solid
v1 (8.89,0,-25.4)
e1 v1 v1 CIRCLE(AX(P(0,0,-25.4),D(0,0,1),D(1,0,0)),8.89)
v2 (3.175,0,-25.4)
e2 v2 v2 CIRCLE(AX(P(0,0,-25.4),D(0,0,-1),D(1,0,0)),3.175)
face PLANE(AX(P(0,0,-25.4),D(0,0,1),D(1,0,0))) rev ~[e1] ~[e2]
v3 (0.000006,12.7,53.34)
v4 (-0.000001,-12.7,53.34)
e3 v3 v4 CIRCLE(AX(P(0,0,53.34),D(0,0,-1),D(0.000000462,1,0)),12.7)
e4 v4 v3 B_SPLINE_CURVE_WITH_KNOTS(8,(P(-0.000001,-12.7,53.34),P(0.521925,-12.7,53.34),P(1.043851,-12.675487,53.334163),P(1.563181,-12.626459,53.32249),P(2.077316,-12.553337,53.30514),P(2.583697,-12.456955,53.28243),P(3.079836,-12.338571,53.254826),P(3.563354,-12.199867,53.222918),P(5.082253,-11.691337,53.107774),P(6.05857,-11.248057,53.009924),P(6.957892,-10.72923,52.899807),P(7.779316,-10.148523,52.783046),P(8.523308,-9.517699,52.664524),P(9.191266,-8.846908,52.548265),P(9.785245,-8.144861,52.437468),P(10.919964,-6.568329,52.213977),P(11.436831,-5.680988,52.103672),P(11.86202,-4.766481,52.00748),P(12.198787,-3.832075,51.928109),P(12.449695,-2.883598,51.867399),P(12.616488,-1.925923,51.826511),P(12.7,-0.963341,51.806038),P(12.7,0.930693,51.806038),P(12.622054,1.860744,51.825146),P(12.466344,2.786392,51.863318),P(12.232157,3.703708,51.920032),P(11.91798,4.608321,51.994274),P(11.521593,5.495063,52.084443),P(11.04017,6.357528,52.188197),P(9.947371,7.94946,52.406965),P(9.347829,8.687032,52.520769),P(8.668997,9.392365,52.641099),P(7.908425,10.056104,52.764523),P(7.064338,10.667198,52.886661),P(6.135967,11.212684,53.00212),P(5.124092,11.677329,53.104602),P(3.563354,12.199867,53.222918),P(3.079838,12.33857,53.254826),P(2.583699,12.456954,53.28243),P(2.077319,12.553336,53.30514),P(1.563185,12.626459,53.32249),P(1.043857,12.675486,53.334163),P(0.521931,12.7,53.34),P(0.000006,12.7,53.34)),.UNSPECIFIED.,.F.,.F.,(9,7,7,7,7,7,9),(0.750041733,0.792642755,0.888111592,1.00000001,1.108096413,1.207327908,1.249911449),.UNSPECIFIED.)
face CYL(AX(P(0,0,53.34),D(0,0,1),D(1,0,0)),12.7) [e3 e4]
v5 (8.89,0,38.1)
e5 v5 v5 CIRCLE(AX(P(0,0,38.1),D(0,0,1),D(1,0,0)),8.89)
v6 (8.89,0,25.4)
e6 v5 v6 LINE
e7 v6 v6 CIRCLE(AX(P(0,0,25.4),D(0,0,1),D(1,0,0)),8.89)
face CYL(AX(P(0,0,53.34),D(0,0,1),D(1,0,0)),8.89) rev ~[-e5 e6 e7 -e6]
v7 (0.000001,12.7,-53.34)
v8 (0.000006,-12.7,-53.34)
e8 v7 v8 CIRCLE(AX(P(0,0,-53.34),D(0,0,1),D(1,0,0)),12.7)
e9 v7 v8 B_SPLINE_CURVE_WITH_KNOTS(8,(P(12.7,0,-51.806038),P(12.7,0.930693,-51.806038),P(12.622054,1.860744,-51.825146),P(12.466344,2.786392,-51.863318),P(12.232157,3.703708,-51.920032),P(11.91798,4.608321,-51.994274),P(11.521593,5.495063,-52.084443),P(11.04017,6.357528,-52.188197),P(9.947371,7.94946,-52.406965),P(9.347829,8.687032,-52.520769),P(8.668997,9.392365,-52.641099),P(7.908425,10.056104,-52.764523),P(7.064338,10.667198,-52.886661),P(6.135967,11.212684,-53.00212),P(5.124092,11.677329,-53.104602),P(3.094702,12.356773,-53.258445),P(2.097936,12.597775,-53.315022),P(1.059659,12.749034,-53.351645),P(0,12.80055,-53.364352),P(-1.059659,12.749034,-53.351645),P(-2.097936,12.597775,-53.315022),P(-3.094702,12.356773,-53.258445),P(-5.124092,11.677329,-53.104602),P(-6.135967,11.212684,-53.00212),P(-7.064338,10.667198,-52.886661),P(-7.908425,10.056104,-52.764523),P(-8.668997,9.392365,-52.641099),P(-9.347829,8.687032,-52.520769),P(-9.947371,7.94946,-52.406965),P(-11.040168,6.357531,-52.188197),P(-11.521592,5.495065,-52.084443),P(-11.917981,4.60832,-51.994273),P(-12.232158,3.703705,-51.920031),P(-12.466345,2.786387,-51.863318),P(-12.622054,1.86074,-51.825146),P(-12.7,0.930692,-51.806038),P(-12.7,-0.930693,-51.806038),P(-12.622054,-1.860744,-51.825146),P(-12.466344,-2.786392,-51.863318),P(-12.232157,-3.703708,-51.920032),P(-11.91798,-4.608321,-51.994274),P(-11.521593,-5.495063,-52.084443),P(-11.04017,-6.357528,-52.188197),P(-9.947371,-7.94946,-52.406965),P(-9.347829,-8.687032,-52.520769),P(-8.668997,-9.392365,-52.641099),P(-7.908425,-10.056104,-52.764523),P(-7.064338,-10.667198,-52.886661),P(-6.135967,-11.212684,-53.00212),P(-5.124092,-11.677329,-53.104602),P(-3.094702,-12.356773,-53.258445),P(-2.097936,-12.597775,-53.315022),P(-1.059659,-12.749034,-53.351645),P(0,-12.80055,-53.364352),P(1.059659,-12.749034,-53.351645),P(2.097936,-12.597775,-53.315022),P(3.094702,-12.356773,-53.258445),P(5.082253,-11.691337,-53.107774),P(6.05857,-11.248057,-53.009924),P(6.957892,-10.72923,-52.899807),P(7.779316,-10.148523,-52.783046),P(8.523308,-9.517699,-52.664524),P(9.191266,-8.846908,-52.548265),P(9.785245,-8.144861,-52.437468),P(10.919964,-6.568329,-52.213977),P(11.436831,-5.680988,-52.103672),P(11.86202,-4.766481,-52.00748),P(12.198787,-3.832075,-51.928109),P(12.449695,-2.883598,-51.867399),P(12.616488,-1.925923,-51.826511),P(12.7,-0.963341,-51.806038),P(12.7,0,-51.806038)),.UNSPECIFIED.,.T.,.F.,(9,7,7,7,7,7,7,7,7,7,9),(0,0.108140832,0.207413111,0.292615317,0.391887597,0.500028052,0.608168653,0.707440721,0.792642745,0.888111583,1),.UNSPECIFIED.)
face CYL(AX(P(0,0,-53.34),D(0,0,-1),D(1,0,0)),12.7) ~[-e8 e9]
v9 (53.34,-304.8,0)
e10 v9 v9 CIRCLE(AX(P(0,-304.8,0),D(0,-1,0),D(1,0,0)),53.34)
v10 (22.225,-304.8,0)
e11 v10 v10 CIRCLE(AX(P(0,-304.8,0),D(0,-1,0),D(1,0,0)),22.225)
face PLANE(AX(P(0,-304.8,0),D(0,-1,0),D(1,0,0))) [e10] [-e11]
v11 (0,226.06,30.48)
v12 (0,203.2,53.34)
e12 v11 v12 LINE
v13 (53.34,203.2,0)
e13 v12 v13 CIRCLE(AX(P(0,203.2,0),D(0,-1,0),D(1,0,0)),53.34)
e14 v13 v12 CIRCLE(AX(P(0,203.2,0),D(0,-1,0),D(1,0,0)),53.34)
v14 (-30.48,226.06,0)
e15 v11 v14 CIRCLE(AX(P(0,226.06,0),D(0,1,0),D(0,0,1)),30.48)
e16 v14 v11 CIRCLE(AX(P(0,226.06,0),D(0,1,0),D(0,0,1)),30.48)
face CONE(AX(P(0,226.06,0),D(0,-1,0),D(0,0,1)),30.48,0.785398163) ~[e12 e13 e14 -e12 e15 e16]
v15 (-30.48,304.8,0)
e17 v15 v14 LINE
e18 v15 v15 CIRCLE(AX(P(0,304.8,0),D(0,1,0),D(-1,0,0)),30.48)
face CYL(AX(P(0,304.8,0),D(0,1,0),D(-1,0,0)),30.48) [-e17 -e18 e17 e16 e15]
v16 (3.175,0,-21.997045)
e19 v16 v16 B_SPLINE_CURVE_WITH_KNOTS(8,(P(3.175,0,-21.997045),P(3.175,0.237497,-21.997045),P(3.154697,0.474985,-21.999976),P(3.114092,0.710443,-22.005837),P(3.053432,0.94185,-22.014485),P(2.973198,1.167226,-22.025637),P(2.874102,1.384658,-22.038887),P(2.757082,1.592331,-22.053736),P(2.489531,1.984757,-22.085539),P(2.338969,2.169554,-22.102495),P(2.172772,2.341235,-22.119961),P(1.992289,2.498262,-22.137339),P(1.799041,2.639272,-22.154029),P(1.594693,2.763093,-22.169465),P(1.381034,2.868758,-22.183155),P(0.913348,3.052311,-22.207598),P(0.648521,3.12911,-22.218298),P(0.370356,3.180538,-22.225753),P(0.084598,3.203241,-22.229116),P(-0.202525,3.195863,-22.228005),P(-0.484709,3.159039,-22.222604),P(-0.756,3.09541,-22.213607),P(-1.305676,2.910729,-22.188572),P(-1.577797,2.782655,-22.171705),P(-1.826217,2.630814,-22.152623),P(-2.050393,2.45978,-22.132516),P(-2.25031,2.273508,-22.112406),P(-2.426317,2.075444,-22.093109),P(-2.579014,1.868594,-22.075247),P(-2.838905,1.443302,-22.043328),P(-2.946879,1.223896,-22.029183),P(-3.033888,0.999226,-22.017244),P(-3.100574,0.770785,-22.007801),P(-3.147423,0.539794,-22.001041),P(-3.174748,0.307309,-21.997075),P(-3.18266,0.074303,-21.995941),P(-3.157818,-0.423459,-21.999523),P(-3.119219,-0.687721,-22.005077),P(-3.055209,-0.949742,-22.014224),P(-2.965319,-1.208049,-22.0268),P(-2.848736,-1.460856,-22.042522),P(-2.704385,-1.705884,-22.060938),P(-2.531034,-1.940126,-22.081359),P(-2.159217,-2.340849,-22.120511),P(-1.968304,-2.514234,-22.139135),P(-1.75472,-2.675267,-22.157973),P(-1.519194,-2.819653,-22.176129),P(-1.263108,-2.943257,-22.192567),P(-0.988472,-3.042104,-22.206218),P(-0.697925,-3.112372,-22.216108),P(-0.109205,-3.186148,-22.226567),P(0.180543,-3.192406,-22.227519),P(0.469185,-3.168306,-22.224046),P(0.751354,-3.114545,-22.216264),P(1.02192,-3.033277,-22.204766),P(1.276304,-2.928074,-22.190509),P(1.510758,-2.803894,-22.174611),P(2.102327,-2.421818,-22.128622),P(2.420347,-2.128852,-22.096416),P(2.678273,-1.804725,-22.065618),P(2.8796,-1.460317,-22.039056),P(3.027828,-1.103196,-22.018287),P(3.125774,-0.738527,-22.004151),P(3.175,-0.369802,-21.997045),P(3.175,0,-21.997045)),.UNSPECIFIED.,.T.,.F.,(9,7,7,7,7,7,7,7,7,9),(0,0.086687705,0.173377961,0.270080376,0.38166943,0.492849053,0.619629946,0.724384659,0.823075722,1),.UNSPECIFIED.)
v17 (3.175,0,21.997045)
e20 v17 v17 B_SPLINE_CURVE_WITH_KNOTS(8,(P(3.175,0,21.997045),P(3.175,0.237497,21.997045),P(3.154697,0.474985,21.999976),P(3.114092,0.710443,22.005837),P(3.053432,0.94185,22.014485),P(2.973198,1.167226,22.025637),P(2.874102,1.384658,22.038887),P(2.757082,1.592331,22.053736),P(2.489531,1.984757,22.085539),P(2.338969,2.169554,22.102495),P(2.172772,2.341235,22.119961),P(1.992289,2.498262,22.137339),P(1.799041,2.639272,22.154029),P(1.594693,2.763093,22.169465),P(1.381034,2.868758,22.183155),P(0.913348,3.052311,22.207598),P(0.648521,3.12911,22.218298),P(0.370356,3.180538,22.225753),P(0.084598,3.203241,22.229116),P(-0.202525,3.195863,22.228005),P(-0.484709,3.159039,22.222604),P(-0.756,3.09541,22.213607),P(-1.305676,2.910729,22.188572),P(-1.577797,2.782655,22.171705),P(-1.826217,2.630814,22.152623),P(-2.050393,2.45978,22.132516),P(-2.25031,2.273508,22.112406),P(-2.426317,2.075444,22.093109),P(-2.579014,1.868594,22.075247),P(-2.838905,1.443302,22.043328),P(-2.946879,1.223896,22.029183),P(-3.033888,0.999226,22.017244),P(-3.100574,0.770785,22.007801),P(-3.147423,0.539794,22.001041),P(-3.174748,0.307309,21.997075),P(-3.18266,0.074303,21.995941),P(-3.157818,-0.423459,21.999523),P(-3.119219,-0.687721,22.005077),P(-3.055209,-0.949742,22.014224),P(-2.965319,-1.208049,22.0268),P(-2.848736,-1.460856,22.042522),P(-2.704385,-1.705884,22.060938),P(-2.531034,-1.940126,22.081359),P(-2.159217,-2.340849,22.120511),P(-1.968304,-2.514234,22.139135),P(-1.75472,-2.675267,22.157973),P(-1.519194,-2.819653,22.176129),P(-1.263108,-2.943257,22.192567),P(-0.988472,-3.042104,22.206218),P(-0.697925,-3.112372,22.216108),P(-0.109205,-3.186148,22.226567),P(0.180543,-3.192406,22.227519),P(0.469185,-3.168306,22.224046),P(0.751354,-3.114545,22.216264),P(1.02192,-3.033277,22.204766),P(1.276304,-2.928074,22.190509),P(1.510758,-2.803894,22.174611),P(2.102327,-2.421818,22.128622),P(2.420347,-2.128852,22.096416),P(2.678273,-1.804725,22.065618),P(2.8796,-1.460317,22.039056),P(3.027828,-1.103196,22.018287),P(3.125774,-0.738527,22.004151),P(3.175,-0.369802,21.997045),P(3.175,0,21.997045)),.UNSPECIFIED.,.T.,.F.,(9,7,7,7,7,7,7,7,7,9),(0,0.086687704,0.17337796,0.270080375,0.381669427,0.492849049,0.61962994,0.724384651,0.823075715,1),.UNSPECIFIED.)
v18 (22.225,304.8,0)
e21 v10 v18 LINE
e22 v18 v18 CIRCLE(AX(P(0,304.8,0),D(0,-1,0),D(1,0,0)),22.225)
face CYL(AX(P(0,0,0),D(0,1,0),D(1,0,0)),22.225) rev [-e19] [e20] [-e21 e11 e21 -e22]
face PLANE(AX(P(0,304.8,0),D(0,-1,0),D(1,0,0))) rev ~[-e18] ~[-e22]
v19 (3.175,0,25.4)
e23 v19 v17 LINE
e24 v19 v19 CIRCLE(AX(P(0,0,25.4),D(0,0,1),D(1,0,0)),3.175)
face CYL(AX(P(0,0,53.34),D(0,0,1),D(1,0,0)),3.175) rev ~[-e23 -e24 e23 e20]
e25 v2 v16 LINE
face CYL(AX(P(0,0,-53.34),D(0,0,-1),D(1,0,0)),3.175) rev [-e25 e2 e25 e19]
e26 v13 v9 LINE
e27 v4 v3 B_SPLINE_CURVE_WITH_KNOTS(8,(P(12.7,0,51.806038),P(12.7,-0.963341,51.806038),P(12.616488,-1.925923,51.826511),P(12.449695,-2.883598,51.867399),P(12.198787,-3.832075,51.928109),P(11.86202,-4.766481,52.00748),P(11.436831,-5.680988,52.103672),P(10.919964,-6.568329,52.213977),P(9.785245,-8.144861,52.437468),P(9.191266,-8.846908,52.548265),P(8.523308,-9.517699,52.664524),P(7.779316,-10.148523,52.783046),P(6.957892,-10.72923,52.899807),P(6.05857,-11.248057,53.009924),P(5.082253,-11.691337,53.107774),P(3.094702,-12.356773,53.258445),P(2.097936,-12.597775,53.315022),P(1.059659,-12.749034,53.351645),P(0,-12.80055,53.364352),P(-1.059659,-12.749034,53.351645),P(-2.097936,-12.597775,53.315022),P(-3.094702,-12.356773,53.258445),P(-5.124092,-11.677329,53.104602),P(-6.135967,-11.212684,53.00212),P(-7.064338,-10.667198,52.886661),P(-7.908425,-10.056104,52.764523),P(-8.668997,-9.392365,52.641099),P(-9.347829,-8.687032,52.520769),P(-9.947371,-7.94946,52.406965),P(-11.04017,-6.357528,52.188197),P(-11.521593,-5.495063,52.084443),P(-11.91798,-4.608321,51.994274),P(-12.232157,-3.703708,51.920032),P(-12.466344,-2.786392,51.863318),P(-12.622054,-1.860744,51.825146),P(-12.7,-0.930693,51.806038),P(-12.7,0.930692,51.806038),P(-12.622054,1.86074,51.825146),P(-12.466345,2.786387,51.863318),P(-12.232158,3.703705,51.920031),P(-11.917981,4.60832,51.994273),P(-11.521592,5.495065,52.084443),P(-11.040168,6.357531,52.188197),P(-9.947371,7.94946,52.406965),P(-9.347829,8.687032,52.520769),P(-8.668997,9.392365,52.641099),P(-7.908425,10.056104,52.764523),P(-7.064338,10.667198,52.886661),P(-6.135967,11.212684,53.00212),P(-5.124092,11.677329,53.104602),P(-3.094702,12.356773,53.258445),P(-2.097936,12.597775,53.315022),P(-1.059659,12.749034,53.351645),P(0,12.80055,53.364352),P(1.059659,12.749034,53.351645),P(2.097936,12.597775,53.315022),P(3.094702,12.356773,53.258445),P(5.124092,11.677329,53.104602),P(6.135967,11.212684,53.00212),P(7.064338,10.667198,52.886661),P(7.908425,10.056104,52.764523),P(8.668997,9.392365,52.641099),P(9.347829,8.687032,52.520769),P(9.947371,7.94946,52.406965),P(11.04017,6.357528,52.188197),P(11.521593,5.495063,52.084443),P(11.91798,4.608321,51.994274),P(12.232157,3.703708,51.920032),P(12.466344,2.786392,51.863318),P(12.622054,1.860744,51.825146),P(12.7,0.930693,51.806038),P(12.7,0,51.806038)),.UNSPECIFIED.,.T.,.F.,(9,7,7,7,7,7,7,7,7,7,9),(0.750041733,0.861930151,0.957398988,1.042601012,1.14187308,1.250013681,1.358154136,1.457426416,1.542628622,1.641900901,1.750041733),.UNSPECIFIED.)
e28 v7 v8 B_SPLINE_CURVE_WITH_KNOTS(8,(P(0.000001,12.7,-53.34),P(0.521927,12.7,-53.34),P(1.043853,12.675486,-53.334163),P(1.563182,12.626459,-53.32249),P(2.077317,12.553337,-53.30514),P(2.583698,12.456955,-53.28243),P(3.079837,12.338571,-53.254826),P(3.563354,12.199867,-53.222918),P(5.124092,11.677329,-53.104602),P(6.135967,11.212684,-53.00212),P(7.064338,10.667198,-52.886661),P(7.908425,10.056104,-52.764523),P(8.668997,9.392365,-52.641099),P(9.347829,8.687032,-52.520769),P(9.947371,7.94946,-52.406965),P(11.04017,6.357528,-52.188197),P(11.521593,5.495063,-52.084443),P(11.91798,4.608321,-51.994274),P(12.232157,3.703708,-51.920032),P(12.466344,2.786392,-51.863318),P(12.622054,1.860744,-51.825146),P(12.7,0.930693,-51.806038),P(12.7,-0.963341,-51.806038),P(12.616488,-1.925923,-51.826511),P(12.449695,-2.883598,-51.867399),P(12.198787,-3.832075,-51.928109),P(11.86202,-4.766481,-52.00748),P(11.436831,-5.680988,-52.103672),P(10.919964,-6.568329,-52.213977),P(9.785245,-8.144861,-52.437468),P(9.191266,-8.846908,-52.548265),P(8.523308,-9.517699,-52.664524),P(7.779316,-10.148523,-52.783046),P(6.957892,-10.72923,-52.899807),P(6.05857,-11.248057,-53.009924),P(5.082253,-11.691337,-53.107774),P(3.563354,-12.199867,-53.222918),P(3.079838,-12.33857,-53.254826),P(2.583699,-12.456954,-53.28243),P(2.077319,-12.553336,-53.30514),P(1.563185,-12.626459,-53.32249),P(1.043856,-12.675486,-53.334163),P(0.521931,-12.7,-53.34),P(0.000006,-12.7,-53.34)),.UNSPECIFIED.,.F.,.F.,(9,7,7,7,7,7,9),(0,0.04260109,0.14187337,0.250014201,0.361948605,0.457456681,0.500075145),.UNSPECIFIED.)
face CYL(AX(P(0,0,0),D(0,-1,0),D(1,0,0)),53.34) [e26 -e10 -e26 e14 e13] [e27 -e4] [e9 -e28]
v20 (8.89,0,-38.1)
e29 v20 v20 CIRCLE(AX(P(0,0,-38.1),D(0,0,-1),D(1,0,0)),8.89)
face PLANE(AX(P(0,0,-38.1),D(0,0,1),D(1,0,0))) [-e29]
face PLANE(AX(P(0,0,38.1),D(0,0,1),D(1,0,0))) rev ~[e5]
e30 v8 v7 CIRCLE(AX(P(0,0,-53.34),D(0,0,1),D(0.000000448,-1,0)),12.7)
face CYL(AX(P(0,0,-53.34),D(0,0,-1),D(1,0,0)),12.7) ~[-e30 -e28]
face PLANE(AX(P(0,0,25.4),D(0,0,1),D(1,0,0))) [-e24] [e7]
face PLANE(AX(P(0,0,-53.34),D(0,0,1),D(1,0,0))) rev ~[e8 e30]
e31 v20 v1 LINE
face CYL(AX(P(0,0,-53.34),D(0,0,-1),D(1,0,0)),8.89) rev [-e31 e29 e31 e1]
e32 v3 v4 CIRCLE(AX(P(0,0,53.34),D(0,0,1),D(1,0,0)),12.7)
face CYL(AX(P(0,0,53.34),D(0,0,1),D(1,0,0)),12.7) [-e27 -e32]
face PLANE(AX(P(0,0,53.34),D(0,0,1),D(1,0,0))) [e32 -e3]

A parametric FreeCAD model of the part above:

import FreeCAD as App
import Part
import Sketcher

V = App.Vector
Q = App.Units.Quantity

doc = App.newDocument("Part")
body = doc.addObject("PartDesign::Body", "Body")

sketch1 = doc.addObject("Sketcher::SketchObject", "Sketch")
body.addObject(sketch1)
sketch1.AttachmentSupport = (doc.XZ_Plane, [""])
sketch1.MapMode = "FlatFace"
sketch1.addGeometry([
    Part.Circle(V(0, 0, 0), V(0, 0, 1), 53),
    Part.Circle(V(0, 0, 0), V(0, 0, 1), 22),
], False)
sketch1.addConstraint([
    Sketcher.Constraint("Coincident", 0, 3, -1, 1),
    Sketcher.Constraint("Coincident", 1, 3, -1, 1),
    Sketcher.Constraint("Diameter", 0, Q("4.2 in")),
    Sketcher.Constraint("Diameter", 1, Q("1.75 in")),
])
pad1 = doc.addObject("PartDesign::Pad", "Pad")
body.addObject(pad1)
pad1.Profile = sketch1
pad1.Length = Q("24 in")
pad1.Midplane = True

sketch2 = doc.addObject("Sketcher::SketchObject", "Sketch001")
body.addObject(sketch2)
sketch2.AttachmentSupport = (doc.XZ_Plane, [""])
sketch2.MapMode = "FlatFace"
sketch2.AttachmentOffset = App.Placement(V(0, 0, -12 * 25.4), App.Rotation())
sketch2.addGeometry([
    Part.Circle(V(0, 0, 0), V(0, 0, 1), 53),
    Part.Circle(V(0, 0, 0), V(0, 0, 1), 30),
], False)
sketch2.addConstraint([
    Sketcher.Constraint("Coincident", 0, 3, -1, 1),
    Sketcher.Constraint("Coincident", 1, 3, -1, 1),
    Sketcher.Constraint("Diameter", 0, Q("4.2 in")),
    Sketcher.Constraint("Diameter", 1, Q("2.4 in")),
])
pocket1 = doc.addObject("PartDesign::Pocket", "Pocket")
body.addObject(pocket1)
pocket1.Profile = sketch2
pocket1.Length = Q("4 in")
pocket1.Reversed = True

sketch3 = doc.addObject("Sketcher::SketchObject", "Sketch002")
body.addObject(sketch3)
sketch3.AttachmentSupport = (doc.YZ_Plane, [""])
sketch3.MapMode = "FlatFace"
sketch3.addGeometry([
    Part.LineSegment(V(203, 53, 0), V(203, 30, 0)),
    Part.LineSegment(V(203, 30, 0), V(226, 30, 0)),
    Part.LineSegment(V(226, 30, 0), V(203, 53, 0)),
], False)
sketch3.addConstraint([
    Sketcher.Constraint("Coincident", 0, 2, 1, 1),
    Sketcher.Constraint("Coincident", 1, 2, 2, 1),
    Sketcher.Constraint("Coincident", 2, 2, 0, 1),
    Sketcher.Constraint("Vertical", 0),
    Sketcher.Constraint("Horizontal", 1),
    Sketcher.Constraint("Equal", 1, 0),
    Sketcher.Constraint("DistanceX", 1, 1, 1, 2, Q("0.9 in")),
    Sketcher.Constraint("DistanceX", -1, 1, 0, 2, Q("8 in")),
    Sketcher.Constraint("DistanceY", -1, 1, 0, 2, Q("1.2 in")),
])
revolution = doc.addObject("PartDesign::Revolution", "Revolution")
body.addObject(revolution)
revolution.Profile = sketch3
revolution.ReferenceAxis = (sketch3, ["H_Axis"])
revolution.Angle = 360

sketch4 = doc.addObject("Sketcher::SketchObject", "Sketch003")
body.addObject(sketch4)
sketch4.AttachmentSupport = (doc.XY_Plane, [""])
sketch4.MapMode = "FlatFace"
sketch4.AttachmentOffset = App.Placement(V(0, 0, 2.1 * 25.4), App.Rotation())
sketch4.addGeometry(Part.Circle(V(0, 0, 0), V(0, 0, 1), 13), False)
sketch4.addConstraint([
    Sketcher.Constraint("Coincident", 0, 3, -1, 1),
    Sketcher.Constraint("Diameter", 0, Q("1 in")),
])
pocket2 = doc.addObject("PartDesign::Pocket", "Pocket001")
body.addObject(pocket2)
pocket2.Profile = sketch4
pocket2.Length = Q("0.6 in")

sketch5 = doc.addObject("Sketcher::SketchObject", "Sketch004")
body.addObject(sketch5)
sketch5.AttachmentSupport = (doc.XY_Plane, [""])
sketch5.MapMode = "FlatFace"
sketch5.AttachmentOffset = App.Placement(V(0, 0, 2.1 * 25.4), App.Rotation())
sketch5.addGeometry(Part.Circle(V(0, 0, 0), V(0, 0, 1), 9), False)
sketch5.addConstraint([
    Sketcher.Constraint("Coincident", 0, 3, -1, 1),
    Sketcher.Constraint("Diameter", 0, Q("0.7 in")),
])
pocket3 = doc.addObject("PartDesign::Pocket", "Pocket002")
body.addObject(pocket3)
pocket3.Profile = sketch5
pocket3.Length = Q("1.1 in")

sketch6 = doc.addObject("Sketcher::SketchObject", "Sketch005")
body.addObject(sketch6)
sketch6.AttachmentSupport = (doc.XY_Plane, [""])
sketch6.MapMode = "FlatFace"
sketch6.AttachmentOffset = App.Placement(V(0, 0, 2.1 * 25.4), App.Rotation())
sketch6.addGeometry(Part.Circle(V(0, 0, 0), V(0, 0, 1), 3.2), False)
sketch6.addConstraint([
    Sketcher.Constraint("Coincident", 0, 3, -1, 1),
    Sketcher.Constraint("Diameter", 0, Q("0.25 in")),
])
pocket4 = doc.addObject("PartDesign::Pocket", "Pocket003")
body.addObject(pocket4)
pocket4.Profile = sketch6
pocket4.Length = 32.342955

sketch7 = doc.addObject("Sketcher::SketchObject", "Sketch006")
body.addObject(sketch7)
sketch7.AttachmentSupport = (doc.XY_Plane, [""])
sketch7.MapMode = "FlatFace"
sketch7.AttachmentOffset = App.Placement(V(0, 0, -2.1 * 25.4), App.Rotation())
sketch7.addGeometry(Part.Circle(V(0, 0, 0), V(0, 0, 1), 13), False)
sketch7.addConstraint([
    Sketcher.Constraint("Coincident", 0, 3, -1, 1),
    Sketcher.Constraint("Diameter", 0, Q("1 in")),
])
pocket5 = doc.addObject("PartDesign::Pocket", "Pocket004")
body.addObject(pocket5)
pocket5.Profile = sketch7
pocket5.Length = Q("0.6 in")
pocket5.Reversed = True

sketch8 = doc.addObject("Sketcher::SketchObject", "Sketch007")
body.addObject(sketch8)
sketch8.AttachmentSupport = (doc.XY_Plane, [""])
sketch8.MapMode = "FlatFace"
sketch8.AttachmentOffset = App.Placement(V(0, 0, -2.1 * 25.4), App.Rotation())
sketch8.addGeometry(Part.Circle(V(0, 0, 0), V(0, 0, 1), 9), False)
sketch8.addConstraint([
    Sketcher.Constraint("Coincident", 0, 3, -1, 1),
    Sketcher.Constraint("Diameter", 0, Q("0.7 in")),
])
pocket6 = doc.addObject("PartDesign::Pocket", "Pocket005")
body.addObject(pocket6)
pocket6.Profile = sketch8
pocket6.Length = Q("1.1 in")
pocket6.Reversed = True

sketch9 = doc.addObject("Sketcher::SketchObject", "Sketch008")
body.addObject(sketch9)
sketch9.AttachmentSupport = (doc.XY_Plane, [""])
sketch9.MapMode = "FlatFace"
sketch9.AttachmentOffset = App.Placement(V(0, 0, -2.1 * 25.4), App.Rotation())
sketch9.addGeometry(Part.Circle(V(0, 0, 0), V(0, 0, 1), 3.2), False)
sketch9.addConstraint([
    Sketcher.Constraint("Coincident", 0, 3, -1, 1),
    Sketcher.Constraint("Diameter", 0, Q("0.25 in")),
])
pocket7 = doc.addObject("PartDesign::Pocket", "Pocket006")
body.addObject(pocket7)
pocket7.Profile = sketch9
pocket7.Length = 32.342955
pocket7.Reversed = True

sketch10 = doc.addObject("Sketcher::SketchObject", "Sketch009")
body.addObject(sketch10)
sketch10.AttachmentSupport = (doc.XY_Plane, [""])
sketch10.MapMode = "FlatFace"
sketch10.AttachmentOffset = App.Placement(V(0, 0, 2.1 * 25.4), App.Rotation())
sketch10.addGeometry(Part.Circle(V(0, 0, 0), V(0, 0, 1), 13), False)
sketch10.addConstraint([
    Sketcher.Constraint("Coincident", 0, 3, -1, 1),
    Sketcher.Constraint("Diameter", 0, Q("1 in")),
])
pad2 = doc.addObject("PartDesign::Pad", "Pad001")
body.addObject(pad2)
pad2.Profile = sketch10
pad2.Length = Q("0.6 in")
pad2.Reversed = True

sketch11 = doc.addObject("Sketcher::SketchObject", "Sketch010")
body.addObject(sketch11)
sketch11.AttachmentSupport = (doc.XY_Plane, [""])
sketch11.MapMode = "FlatFace"
sketch11.AttachmentOffset = App.Placement(V(0, 0, -2.1 * 25.4), App.Rotation())
sketch11.addGeometry(Part.Circle(V(0, 0, 0), V(0, 0, 1), 13), False)
sketch11.addConstraint([
    Sketcher.Constraint("Coincident", 0, 3, -1, 1),
    Sketcher.Constraint("Diameter", 0, Q("1 in")),
])
pad3 = doc.addObject("PartDesign::Pad", "Pad002")
body.addObject(pad3)
pad3.Profile = sketch11
pad3.Length = Q("0.6 in")

doc.recompute()
